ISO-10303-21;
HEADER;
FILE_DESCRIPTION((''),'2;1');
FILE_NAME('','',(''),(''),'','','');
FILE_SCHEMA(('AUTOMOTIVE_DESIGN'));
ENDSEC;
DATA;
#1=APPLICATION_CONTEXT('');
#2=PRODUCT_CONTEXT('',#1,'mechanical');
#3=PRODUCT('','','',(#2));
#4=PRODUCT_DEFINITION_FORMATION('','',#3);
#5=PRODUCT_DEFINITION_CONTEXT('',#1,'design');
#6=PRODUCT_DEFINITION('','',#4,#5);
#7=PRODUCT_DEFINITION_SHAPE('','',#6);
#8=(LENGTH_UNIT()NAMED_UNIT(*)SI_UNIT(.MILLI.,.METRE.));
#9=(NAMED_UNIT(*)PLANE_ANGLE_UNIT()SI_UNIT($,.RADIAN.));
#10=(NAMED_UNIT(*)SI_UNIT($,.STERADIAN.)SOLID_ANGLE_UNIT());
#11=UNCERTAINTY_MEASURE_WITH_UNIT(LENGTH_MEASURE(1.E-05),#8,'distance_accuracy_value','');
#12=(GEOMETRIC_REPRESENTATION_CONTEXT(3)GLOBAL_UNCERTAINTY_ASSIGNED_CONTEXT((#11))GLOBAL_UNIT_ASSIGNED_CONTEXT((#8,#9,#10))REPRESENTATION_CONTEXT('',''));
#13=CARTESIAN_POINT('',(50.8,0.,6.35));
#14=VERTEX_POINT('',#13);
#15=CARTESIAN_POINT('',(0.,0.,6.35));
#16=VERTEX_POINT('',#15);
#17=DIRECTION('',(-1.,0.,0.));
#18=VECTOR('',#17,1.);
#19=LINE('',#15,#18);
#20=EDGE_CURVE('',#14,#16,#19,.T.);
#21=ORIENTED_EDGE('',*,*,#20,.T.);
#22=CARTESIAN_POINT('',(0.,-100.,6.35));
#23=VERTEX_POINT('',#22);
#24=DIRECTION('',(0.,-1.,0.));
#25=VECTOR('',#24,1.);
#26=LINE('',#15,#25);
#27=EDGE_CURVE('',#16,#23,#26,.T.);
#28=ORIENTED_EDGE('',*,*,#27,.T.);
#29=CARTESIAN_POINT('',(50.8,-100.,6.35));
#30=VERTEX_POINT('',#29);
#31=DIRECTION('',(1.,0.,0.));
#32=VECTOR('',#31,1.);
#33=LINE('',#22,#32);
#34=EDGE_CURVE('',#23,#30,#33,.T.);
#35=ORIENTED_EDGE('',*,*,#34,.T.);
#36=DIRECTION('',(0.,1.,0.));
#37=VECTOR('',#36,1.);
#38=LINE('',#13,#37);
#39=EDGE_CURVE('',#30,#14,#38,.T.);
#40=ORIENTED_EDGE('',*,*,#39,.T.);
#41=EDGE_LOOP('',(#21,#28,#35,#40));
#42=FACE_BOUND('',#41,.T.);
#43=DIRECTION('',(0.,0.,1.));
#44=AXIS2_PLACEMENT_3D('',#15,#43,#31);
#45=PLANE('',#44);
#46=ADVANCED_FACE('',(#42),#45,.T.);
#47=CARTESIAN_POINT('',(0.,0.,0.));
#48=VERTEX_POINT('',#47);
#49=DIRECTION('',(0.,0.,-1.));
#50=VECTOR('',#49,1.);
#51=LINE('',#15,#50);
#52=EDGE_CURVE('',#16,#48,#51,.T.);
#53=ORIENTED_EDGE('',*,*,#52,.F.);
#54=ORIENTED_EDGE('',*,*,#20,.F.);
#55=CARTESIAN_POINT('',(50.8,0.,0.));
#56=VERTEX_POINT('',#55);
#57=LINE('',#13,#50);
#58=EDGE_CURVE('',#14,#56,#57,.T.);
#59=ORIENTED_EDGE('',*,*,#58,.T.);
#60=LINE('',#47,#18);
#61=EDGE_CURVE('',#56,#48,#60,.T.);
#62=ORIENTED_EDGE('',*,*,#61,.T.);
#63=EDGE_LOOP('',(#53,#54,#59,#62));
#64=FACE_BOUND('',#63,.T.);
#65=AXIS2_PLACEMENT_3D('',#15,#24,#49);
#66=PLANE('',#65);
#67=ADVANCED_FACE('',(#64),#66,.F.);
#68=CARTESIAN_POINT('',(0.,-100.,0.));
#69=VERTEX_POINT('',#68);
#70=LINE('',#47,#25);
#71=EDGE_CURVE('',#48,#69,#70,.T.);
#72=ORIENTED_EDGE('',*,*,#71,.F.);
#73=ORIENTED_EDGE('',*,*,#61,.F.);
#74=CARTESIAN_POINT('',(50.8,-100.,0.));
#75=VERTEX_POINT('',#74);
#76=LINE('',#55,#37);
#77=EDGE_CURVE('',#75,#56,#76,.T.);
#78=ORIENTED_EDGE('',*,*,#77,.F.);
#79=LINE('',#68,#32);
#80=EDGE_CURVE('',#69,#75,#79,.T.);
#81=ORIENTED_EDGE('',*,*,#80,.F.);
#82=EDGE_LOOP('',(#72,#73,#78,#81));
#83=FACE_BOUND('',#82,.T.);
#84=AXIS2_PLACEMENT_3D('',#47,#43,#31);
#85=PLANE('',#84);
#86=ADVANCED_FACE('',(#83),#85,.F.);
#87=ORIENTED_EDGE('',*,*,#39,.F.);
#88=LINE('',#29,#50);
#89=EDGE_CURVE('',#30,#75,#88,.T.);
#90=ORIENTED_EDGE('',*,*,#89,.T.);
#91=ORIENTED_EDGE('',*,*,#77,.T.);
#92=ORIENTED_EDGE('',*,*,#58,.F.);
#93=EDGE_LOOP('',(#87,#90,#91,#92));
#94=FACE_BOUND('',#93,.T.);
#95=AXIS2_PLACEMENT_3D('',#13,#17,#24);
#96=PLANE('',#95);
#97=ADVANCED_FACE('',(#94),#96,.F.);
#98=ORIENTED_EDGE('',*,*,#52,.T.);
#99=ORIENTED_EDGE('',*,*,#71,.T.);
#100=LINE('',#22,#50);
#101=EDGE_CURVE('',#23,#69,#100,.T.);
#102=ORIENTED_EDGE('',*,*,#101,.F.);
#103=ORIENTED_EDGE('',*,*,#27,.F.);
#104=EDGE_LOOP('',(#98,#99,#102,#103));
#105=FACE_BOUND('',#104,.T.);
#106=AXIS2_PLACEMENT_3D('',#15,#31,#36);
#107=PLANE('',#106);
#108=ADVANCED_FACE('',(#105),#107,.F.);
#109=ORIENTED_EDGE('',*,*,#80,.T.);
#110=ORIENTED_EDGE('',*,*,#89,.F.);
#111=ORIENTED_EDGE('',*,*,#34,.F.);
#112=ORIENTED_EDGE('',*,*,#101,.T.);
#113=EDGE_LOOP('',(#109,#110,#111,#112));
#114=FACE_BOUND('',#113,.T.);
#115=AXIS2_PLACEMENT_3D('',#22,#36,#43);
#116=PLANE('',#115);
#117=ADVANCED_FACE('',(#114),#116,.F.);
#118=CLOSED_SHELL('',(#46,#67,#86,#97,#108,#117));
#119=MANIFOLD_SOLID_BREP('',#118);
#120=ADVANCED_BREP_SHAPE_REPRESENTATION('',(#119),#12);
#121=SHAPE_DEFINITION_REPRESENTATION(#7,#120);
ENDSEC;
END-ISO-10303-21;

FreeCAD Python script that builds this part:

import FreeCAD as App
import Part
import Sketcher
Q = App.Units.Quantity


def add_polygon(sketch, points):
    """Adds a closed chain of lines whose ends are joined by coincident constraints."""
    first, n = sketch.GeometryCount, len(points)
    for a, b in zip(points, points[1:] + points[:1]):
        sketch.addGeometry(Part.LineSegment(App.Vector(*a, 0), App.Vector(*b, 0)), False)
    for i in range(n):
        sketch.addConstraint(Sketcher.Constraint("Coincident", first + i, 2, first + (i + 1) % n, 1))

doc = App.newDocument("Part")
body = doc.addObject("PartDesign::Body", "Body")

# Sketch on XY plane
sketch1 = body.newObject("Sketcher::SketchObject", "Sketch")
sketch1.AttachmentSupport = (doc.getObject("XY_Plane"), [""])
sketch1.MapMode = "FlatFace"
add_polygon(sketch1, [(0, 0), (0, -100), (51, -100), (51, 0)])  # lines 0-3
sketch1.addConstraint([
    Sketcher.Constraint("Vertical", 0),
    Sketcher.Constraint("Horizontal", 1),
    Sketcher.Constraint("Vertical", 2),
    Sketcher.Constraint("Horizontal", 3),
    Sketcher.Constraint("Coincident", 3, 2, -1, 1),
    Sketcher.Constraint("DistanceX", 1, 1, 1, 2, Q("2 in")),
    Sketcher.Constraint("DistanceY", 0, 2, 0, 1, Q("100 mm")),
])
pad1 = body.newObject("PartDesign::Pad", "Pad")
pad1.Profile = sketch1
pad1.Length = Q("0.25 in")

doc.recompute()
